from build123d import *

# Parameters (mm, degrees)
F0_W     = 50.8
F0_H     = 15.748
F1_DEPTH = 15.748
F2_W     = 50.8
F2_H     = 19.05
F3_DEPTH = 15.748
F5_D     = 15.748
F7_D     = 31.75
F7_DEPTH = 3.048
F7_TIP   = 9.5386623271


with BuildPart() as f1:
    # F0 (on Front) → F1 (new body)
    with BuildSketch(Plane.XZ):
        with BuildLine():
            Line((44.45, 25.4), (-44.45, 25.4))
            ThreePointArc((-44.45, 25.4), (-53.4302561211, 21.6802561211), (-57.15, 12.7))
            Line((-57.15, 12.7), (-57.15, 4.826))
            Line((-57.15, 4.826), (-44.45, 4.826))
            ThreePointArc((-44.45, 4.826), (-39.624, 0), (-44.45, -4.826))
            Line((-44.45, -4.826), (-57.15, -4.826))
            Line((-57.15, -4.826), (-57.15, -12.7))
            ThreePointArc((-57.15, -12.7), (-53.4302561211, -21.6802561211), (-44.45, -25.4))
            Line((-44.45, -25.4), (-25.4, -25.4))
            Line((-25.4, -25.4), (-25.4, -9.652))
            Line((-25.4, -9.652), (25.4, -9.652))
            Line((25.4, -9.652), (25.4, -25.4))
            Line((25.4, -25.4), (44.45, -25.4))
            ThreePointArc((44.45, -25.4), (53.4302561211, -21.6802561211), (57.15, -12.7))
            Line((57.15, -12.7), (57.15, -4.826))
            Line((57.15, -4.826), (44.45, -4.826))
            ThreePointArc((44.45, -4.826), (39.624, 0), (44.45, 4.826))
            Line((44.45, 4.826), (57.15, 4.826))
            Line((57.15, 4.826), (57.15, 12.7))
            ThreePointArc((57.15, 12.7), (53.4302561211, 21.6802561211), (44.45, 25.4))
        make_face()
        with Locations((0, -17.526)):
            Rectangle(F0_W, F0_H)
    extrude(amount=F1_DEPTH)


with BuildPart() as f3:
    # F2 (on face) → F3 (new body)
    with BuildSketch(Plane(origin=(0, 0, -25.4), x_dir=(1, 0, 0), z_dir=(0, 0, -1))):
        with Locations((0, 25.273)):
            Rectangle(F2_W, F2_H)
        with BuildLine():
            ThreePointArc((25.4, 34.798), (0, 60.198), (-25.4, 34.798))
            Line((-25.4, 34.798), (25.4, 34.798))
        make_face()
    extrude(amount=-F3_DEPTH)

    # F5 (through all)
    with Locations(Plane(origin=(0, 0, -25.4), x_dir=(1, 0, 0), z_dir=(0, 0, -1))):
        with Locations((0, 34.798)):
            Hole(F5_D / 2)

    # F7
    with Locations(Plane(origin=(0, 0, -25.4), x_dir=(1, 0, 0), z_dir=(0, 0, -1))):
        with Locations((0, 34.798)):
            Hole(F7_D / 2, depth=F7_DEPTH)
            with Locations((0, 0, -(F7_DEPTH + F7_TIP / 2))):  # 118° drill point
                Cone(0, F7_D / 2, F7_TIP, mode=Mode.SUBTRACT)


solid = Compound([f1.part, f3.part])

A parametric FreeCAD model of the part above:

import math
import FreeCAD as App
import Part
import Sketcher
Q = App.Units.Quantity

doc = App.newDocument("Part")
body = doc.addObject("PartDesign::Body", "Body")

sketch1 = doc.addObject("Sketcher::SketchObject", "Sketch")
body.addObject(sketch1)
sketch1.AttachmentSupport = (doc.XZ_Plane, [""])
sketch1.MapMode = "FlatFace"
sketch1.addGeometry(Part.LineSegment(App.Vector(44.45, 25.4, 0), App.Vector(-44.45, 25.4, 0)), False)
sketch1.addGeometry(Part.ArcOfCircle(Part.Circle(App.Vector(-44.45, 12.7, 0), App.Vector(0, 0, 1), 12.7), math.radians(90), math.radians(180)), False)
sketch1.addGeometry(Part.LineSegment(App.Vector(-57.15, 12.7, 0), App.Vector(-57.15, 4.826, 0)), False)
sketch1.addGeometry(Part.LineSegment(App.Vector(-57.15, 4.826, 0), App.Vector(-44.45, 4.826, 0)), False)
sketch1.addGeometry(Part.ArcOfCircle(Part.Circle(App.Vector(-44.45, 0, 0), App.Vector(0, 0, 1), 4.826), math.radians(-90), math.radians(90)), False)
sketch1.addGeometry(Part.LineSegment(App.Vector(-44.45, -4.826, 0), App.Vector(-57.15, -4.826, 0)), False)
sketch1.addGeometry(Part.LineSegment(App.Vector(-57.15, -4.826, 0), App.Vector(-57.15, -12.7, 0)), False)
sketch1.addGeometry(Part.ArcOfCircle(Part.Circle(App.Vector(-44.45, -12.7, 0), App.Vector(0, 0, 1), 12.7), math.radians(180), math.radians(270)), False)
sketch1.addGeometry(Part.LineSegment(App.Vector(-44.45, -25.4, 0), App.Vector(44.45, -25.4, 0)), False)
sketch1.addGeometry(Part.ArcOfCircle(Part.Circle(App.Vector(44.45, -12.7, 0), App.Vector(0, 0, 1), 12.7), math.radians(-90), math.radians(0)), False)
sketch1.addGeometry(Part.LineSegment(App.Vector(57.15, -12.7, 0), App.Vector(57.15, -4.826, 0)), False)
sketch1.addGeometry(Part.LineSegment(App.Vector(57.15, -4.826, 0), App.Vector(44.45, -4.826, 0)), False)
sketch1.addGeometry(Part.ArcOfCircle(Part.Circle(App.Vector(44.45, 0, 0), App.Vector(0, 0, 1), 4.826), math.radians(90), math.radians(270)), False)
sketch1.addGeometry(Part.LineSegment(App.Vector(44.45, 4.826, 0), App.Vector(57.15, 4.826, 0)), False)
sketch1.addGeometry(Part.LineSegment(App.Vector(57.15, 4.826, 0), App.Vector(57.15, 12.7, 0)), False)
sketch1.addGeometry(Part.ArcOfCircle(Part.Circle(App.Vector(44.45, 12.7, 0), App.Vector(0, 0, 1), 12.7), math.radians(0), math.radians(90)), False)
sketch1.addConstraint(Sketcher.Constraint("Tangent", 0, 2, 1, 1))
sketch1.addConstraint(Sketcher.Constraint("Tangent", 1, 2, 2, 1))
sketch1.addConstraint(Sketcher.Constraint("Coincident", 2, 2, 3, 1))
sketch1.addConstraint(Sketcher.Constraint("Tangent", 3, 2, 4, 2))
sketch1.addConstraint(Sketcher.Constraint("Tangent", 4, 1, 5, 1))
sketch1.addConstraint(Sketcher.Constraint("Coincident", 5, 2, 6, 1))
sketch1.addConstraint(Sketcher.Constraint("Tangent", 6, 2, 7, 1))
sketch1.addConstraint(Sketcher.Constraint("Tangent", 7, 2, 8, 1))
sketch1.addConstraint(Sketcher.Constraint("Tangent", 8, 2, 9, 1))
sketch1.addConstraint(Sketcher.Constraint("Tangent", 9, 2, 10, 1))
sketch1.addConstraint(Sketcher.Constraint("Coincident", 10, 2, 11, 1))
sketch1.addConstraint(Sketcher.Constraint("Tangent", 11, 2, 12, 2))
sketch1.addConstraint(Sketcher.Constraint("Tangent", 12, 1, 13, 1))
sketch1.addConstraint(Sketcher.Constraint("Coincident", 13, 2, 14, 1))
sketch1.addConstraint(Sketcher.Constraint("Tangent", 14, 2, 15, 1))
sketch1.addConstraint(Sketcher.Constraint("Tangent", 15, 2, 0, 1))
sketch1.addConstraint(Sketcher.Constraint("Horizontal", 0))
sketch1.addConstraint(Sketcher.Constraint("Vertical", 2))
sketch1.addConstraint(Sketcher.Constraint("Horizontal", 3))
sketch1.addConstraint(Sketcher.Constraint("Horizontal", 5))
sketch1.addConstraint(Sketcher.Constraint("Vertical", 6))
sketch1.addConstraint(Sketcher.Constraint("Horizontal", 8))
sketch1.addConstraint(Sketcher.Constraint("Vertical", 10))
sketch1.addConstraint(Sketcher.Constraint("Horizontal", 11))
sketch1.addConstraint(Sketcher.Constraint("Horizontal", 13))
sketch1.addConstraint(Sketcher.Constraint("Vertical", 14))
sketch1.addConstraint(Sketcher.Constraint("Equal", 1, 7))
sketch1.addConstraint(Sketcher.Constraint("Equal", 7, 9))
sketch1.addConstraint(Sketcher.Constraint("Equal", 4, 12))
sketch1.addConstraint(Sketcher.Constraint("Equal", 9, 15))
sketch1.addConstraint(Sketcher.Constraint("Symmetric", 1, 3, 9, 3, -1, 1))
sketch1.addConstraint(Sketcher.Constraint("Symmetric", 4, 3, 12, 3, -1, 1))
sketch1.addConstraint(Sketcher.Constraint("Symmetric", 5, 2, 10, 2, -2))
sketch1.addConstraint(Sketcher.Constraint("Vertical", 1, 3, 4, 3))
sketch1.addConstraint(Sketcher.Constraint("Vertical", 12, 3, 15, 3))
sketch1.addConstraint(Sketcher.Constraint("Radius", 1, Q("0.5 in")))
sketch1.addConstraint(Sketcher.Constraint("Radius", 4, Q("0.19 in")))
sketch1.addConstraint(Sketcher.Constraint("DistanceX", 0, 2, 0, 1, Q("3.5 in")))
sketch1.addConstraint(Sketcher.Constraint("DistanceY", -1, 1, 0, 2, Q("1 in")))
pad1 = doc.addObject("PartDesign::Pad", "Pad")
body.addObject(pad1)
pad1.Profile = sketch1
pad1.Length = Q("0.62 in")
body2 = doc.addObject("PartDesign::Body", "Body001")

sketch2 = doc.addObject("Sketcher::SketchObject", "Sketch001")
body2.addObject(sketch2)
sketch2.AttachmentSupport = (doc.getObject("XY_Plane001"), [""])
sketch2.MapMode = "FlatFace"
sketch2.AttachmentOffset = App.Placement(App.Vector(0, 0, -1 * 25.4), App.Rotation())
sketch2.addGeometry(Part.LineSegment(App.Vector(-25.4, -34.798, 0), App.Vector(-25.4, -15.748, 0)), False)
sketch2.addGeometry(Part.LineSegment(App.Vector(-25.4, -15.748, 0), App.Vector(25.4, -15.748, 0)), False)
sketch2.addGeometry(Part.LineSegment(App.Vector(25.4, -15.748, 0), App.Vector(25.4, -34.798, 0)), False)
sketch2.addGeometry(Part.ArcOfCircle(Part.Circle(App.Vector(0, -34.798, 0), App.Vector(0, 0, 1), 25.4), math.radians(180), math.radians(360)), False)
sketch2.addConstraint(Sketcher.Constraint("Coincident", 0, 2, 1, 1))
sketch2.addConstraint(Sketcher.Constraint("Coincident", 1, 2, 2, 1))
sketch2.addConstraint(Sketcher.Constraint("Tangent", 2, 2, 3, 2))
sketch2.addConstraint(Sketcher.Constraint("Tangent", 3, 1, 0, 1))
sketch2.addConstraint(Sketcher.Constraint("Vertical", 0))
sketch2.addConstraint(Sketcher.Constraint("Horizontal", 1))
sketch2.addConstraint(Sketcher.Constraint("Vertical", 2))
sketch2.addConstraint(Sketcher.Constraint("PointOnObject", 3, 3, -2))
sketch2.addConstraint(Sketcher.Constraint("Radius", 3, Q("1 in")))
sketch2.addConstraint(Sketcher.Constraint("DistanceY", 0, 1, 0, 2, Q("0.75 in")))
sketch2.addConstraint(Sketcher.Constraint("DistanceY", 3, 3, -1, 1, Q("1.37 in")))
pad2 = doc.addObject("PartDesign::Pad", "Pad001")
body2.addObject(pad2)
pad2.Profile = sketch2
pad2.Length = Q("0.62 in")

sketch3 = doc.addObject("Sketcher::SketchObject", "Sketch002")
body2.addObject(sketch3)
sketch3.AttachmentSupport = (doc.getObject("XY_Plane001"), [""])
sketch3.MapMode = "FlatFace"
sketch3.AttachmentOffset = App.Placement(App.Vector(0, 0, -1 * 25.4), App.Rotation())
sketch3.addGeometry(Part.Circle(App.Vector(0, -34.798, 0), App.Vector(0, 0, 1), 7.874), False)
sketch3.addConstraint(Sketcher.Constraint("PointOnObject", 0, 3, -2))
sketch3.addConstraint(Sketcher.Constraint("Diameter", 0, Q("0.62 in")))
sketch3.addConstraint(Sketcher.Constraint("DistanceY", 0, 3, -1, 1, Q("1.37 in")))
doc.recompute()
hole = doc.addObject("PartDesign::Hole", "Hole")
body2.addObject(hole)
hole.Profile = sketch3
hole.ThreadType = "None"
hole.Diameter = Q("0.62 in")
hole.DepthType = "ThroughAll"
hole.Reversed = True

sketch4 = doc.addObject("Sketcher::SketchObject", "Sketch003")
body2.addObject(sketch4)
sketch4.AttachmentSupport = (doc.getObject("XY_Plane001"), [""])
sketch4.MapMode = "FlatFace"
sketch4.AttachmentOffset = App.Placement(App.Vector(0, 0, -1 * 25.4), App.Rotation())
sketch4.addGeometry(Part.Circle(App.Vector(0, -34.798, 0), App.Vector(0, 0, 1), 15.875), False)
sketch4.addConstraint(Sketcher.Constraint("PointOnObject", 0, 3, -2))
sketch4.addConstraint(Sketcher.Constraint("Diameter", 0, Q("1.25 in")))
sketch4.addConstraint(Sketcher.Constraint("DistanceY", 0, 3, -1, 1, Q("1.37 in")))
doc.recompute()
hole2 = doc.addObject("PartDesign::Hole", "Hole001")
body2.addObject(hole2)
hole2.Profile = sketch4
hole2.ThreadType = "None"
hole2.Diameter = Q("1.25 in")
hole2.DepthType = "Dimension"
hole2.Depth = Q("0.12 in")
hole2.DrillPoint = "Angled"
hole2.DrillPointAngle = 118
hole2.Reversed = True

doc.recompute()
